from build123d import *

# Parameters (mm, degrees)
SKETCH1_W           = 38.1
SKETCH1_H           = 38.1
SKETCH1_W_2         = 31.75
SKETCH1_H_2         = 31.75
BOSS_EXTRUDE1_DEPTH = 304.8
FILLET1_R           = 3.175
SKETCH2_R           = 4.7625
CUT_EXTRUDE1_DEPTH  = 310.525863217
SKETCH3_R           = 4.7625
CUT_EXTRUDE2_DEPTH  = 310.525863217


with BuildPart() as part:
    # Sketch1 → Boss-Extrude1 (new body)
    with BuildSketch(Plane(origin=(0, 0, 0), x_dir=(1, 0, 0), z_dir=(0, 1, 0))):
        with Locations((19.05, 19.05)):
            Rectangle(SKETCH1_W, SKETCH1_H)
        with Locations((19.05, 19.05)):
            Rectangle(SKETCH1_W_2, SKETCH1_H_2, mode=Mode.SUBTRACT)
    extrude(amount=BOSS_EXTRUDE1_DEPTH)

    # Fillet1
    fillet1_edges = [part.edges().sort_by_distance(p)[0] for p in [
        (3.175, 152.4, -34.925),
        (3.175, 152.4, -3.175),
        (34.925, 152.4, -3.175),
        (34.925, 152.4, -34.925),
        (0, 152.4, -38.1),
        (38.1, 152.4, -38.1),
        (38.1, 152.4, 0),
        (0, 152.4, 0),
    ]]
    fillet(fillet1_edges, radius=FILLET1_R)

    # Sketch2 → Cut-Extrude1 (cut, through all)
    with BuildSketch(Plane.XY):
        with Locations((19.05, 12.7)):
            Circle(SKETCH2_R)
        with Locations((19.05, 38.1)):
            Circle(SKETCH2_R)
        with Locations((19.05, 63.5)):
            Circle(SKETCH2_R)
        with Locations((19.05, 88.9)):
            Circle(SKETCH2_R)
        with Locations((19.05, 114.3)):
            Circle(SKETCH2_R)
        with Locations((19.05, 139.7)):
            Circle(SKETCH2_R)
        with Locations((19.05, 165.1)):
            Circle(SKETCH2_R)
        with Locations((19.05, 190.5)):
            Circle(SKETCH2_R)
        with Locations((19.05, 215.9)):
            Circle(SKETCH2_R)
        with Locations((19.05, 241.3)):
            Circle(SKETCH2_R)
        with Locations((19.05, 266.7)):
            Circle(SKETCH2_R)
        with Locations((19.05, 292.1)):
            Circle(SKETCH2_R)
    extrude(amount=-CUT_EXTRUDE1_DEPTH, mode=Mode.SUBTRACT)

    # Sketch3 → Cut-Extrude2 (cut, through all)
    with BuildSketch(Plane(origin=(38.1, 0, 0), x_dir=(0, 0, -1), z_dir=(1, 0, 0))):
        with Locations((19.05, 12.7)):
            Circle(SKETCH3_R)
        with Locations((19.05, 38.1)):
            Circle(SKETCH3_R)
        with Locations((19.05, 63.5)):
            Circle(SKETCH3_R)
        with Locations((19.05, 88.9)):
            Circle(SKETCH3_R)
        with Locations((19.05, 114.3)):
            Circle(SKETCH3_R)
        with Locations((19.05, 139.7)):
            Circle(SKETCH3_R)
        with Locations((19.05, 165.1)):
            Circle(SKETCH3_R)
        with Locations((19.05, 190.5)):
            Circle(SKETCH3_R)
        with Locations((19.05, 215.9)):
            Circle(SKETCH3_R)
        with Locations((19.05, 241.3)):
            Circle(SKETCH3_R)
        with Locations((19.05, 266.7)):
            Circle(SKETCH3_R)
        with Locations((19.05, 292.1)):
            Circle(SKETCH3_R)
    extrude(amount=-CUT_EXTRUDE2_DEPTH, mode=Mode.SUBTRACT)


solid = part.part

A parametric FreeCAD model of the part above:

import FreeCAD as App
import Part
import Sketcher

V = App.Vector
Q = App.Units.Quantity


def edges_at(feature, points):
    """Names of the edges that pass closest to the given points."""
    edges = feature.Shape.Edges
    near = lambda p: min(range(len(edges)), key=lambda i: edges[i].distToShape(Part.Vertex(*p))[0])
    return sorted({f"Edge{near(p) + 1}" for p in points})


def add_polygon(sketch, points):
    """Adds a closed chain of lines whose ends are joined by coincident constraints."""
    first, n = sketch.GeometryCount, len(points)
    for a, b in zip(points, points[1:] + points[:1]):
        sketch.addGeometry(Part.LineSegment(App.Vector(*a, 0), App.Vector(*b, 0)), False)
    for i in range(n):
        sketch.addConstraint(Sketcher.Constraint("Coincident", first + i, 2, first + (i + 1) % n, 1))

doc = App.newDocument("Part")
params = doc.addObject("Spreadsheet::Sheet", "Params")
for row, (alias, value) in enumerate([
    ("sketch1_width", "1.5 in"),
    ("sketch1_width2", "1.25 in"),
    ("pad1_length", "12 in"),
    ("fillet_radius", "0.125 in"),
    ("sketch2_diameter", "0.375 in"),
    ("sketch3_diameter", "0.375 in"),
], start=1):
    params.set(f"A{row}", alias)
    params.set(f"B{row}", "=" + value)
    params.setAlias(f"B{row}", alias)

body = doc.addObject("PartDesign::Body", "Body")

# Sketch on XZ plane
sketch1 = body.newObject("Sketcher::SketchObject", "Sketch")
sketch1.AttachmentSupport = (doc.getObject("XZ_Plane"), [""])
sketch1.MapMode = "FlatFace"
add_polygon(sketch1, [(0, -38), (0, 0), (38, 0), (38, -38)])  # lines 0-3
add_polygon(sketch1, [(35, -3), (3, -3), (3, -35), (35, -35)])  # lines 4-7
sketch1.addConstraint([
    Sketcher.Constraint("Vertical", 0),
    Sketcher.Constraint("Horizontal", 1),
    Sketcher.Constraint("Vertical", 2),
    Sketcher.Constraint("Horizontal", 3),
    Sketcher.Constraint("Horizontal", 4),
    Sketcher.Constraint("Vertical", 5),
    Sketcher.Constraint("Horizontal", 6),
    Sketcher.Constraint("Vertical", 7),
    Sketcher.Constraint("Coincident", 0, 2, -1, 1),
    Sketcher.Constraint("Equal", 3, 0),
    Sketcher.Constraint("Equal", 6, 5),
    Sketcher.Constraint("DistanceX", 1, 1, 1, 2, Q("1.5 in")),
    Sketcher.Constraint("DistanceX", 4, 2, 4, 1, Q("1.25 in")),
    Sketcher.Constraint("DistanceX", -1, 1, 4, 2, Q("0.125 in")),
    Sketcher.Constraint("DistanceY", 4, 2, -1, 1, Q("0.125 in")),
])
sketch1.setExpression("Constraints[19]", "Params.sketch1_width")
sketch1.setExpression("Constraints[20]", "Params.sketch1_width2")
pad1 = body.newObject("PartDesign::Pad", "Pad")
pad1.Profile = sketch1
pad1.setExpression("Length", "Params.pad1_length")
pad1.Reversed = True
doc.recompute()

fillet = body.newObject("PartDesign::Fillet", "Fillet")
fillet.Base = (pad1, edges_at(pad1, [
    (3.175, 152.4, -34.925),
    (3.175, 152.4, -3.175),
    (34.925, 152.4, -3.175),
    (34.925, 152.4, -34.925),
    (0, 152.4, -38.1),
    (38.1, 152.4, -38.1),
    (38.1, 152.4, 0),
    (0, 152.4, 0),
]))
fillet.setExpression("Radius", "Params.fillet_radius")

# Sketch on XY plane
sketch2 = body.newObject("Sketcher::SketchObject", "Sketch001")
sketch2.AttachmentSupport = (doc.getObject("XY_Plane"), [""])
sketch2.MapMode = "FlatFace"
sketch2.addGeometry([
    Part.Circle(V(19.1, 12.7, 0), V(0, 0, 1), 4.8),  # 0
    Part.Circle(V(19.1, 38.1, 0), V(0, 0, 1), 4.8),  # 1
    Part.Circle(V(19.1, 63.5, 0), V(0, 0, 1), 4.8),  # 2
    Part.Circle(V(19.1, 88.9, 0), V(0, 0, 1), 4.8),  # 3
    Part.Circle(V(19.1, 114.3, 0), V(0, 0, 1), 4.8),  # 4
    Part.Circle(V(19.1, 139.7, 0), V(0, 0, 1), 4.8),  # 5
    Part.Circle(V(19.1, 165.1, 0), V(0, 0, 1), 4.8),  # 6
    Part.Circle(V(19.1, 190.5, 0), V(0, 0, 1), 4.8),  # 7
    Part.Circle(V(19.1, 215.9, 0), V(0, 0, 1), 4.8),  # 8
    Part.Circle(V(19.1, 241.3, 0), V(0, 0, 1), 4.8),  # 9
    Part.Circle(V(19.1, 266.7, 0), V(0, 0, 1), 4.8),  # 10
    Part.Circle(V(19.1, 292.1, 0), V(0, 0, 1), 4.8),  # 11
], False)
sketch2.addConstraint([
    Sketcher.Constraint("Equal", 0, 1),
    Sketcher.Constraint("Equal", 1, 2),
    Sketcher.Constraint("Equal", 2, 3),
    Sketcher.Constraint("Equal", 3, 4),
    Sketcher.Constraint("Equal", 4, 5),
    Sketcher.Constraint("Equal", 5, 6),
    Sketcher.Constraint("Equal", 6, 7),
    Sketcher.Constraint("Equal", 7, 8),
    Sketcher.Constraint("Equal", 8, 9),
    Sketcher.Constraint("Equal", 9, 10),
    Sketcher.Constraint("Equal", 10, 11),
    Sketcher.Constraint("Vertical", 0, 3, 1, 3),
    Sketcher.Constraint("Vertical", 1, 3, 2, 3),
    Sketcher.Constraint("Vertical", 2, 3, 3, 3),
    Sketcher.Constraint("Vertical", 3, 3, 4, 3),
    Sketcher.Constraint("Vertical", 4, 3, 5, 3),
    Sketcher.Constraint("Vertical", 5, 3, 6, 3),
    Sketcher.Constraint("Vertical", 6, 3, 7, 3),
    Sketcher.Constraint("Vertical", 7, 3, 8, 3),
    Sketcher.Constraint("Vertical", 8, 3, 9, 3),
    Sketcher.Constraint("Vertical", 9, 3, 10, 3),
    Sketcher.Constraint("Vertical", 10, 3, 11, 3),
    Sketcher.Constraint("Diameter", 0, Q("0.375 in")),
    Sketcher.Constraint("DistanceY", 0, 3, 1, 3, Q("1 in")),
    Sketcher.Constraint("DistanceY", 1, 3, 2, 3, Q("1 in")),
    Sketcher.Constraint("DistanceY", 2, 3, 3, 3, Q("1 in")),
    Sketcher.Constraint("DistanceY", 3, 3, 4, 3, Q("1 in")),
    Sketcher.Constraint("DistanceY", 4, 3, 5, 3, Q("1 in")),
    Sketcher.Constraint("DistanceY", 5, 3, 6, 3, Q("1 in")),
    Sketcher.Constraint("DistanceY", 6, 3, 7, 3, Q("1 in")),
    Sketcher.Constraint("DistanceY", 7, 3, 8, 3, Q("1 in")),
    Sketcher.Constraint("DistanceY", 8, 3, 9, 3, Q("1 in")),
    Sketcher.Constraint("DistanceY", 9, 3, 10, 3, Q("1 in")),
    Sketcher.Constraint("DistanceY", 10, 3, 11, 3, Q("1 in")),
    Sketcher.Constraint("DistanceY", -1, 1, 0, 3, Q("0.5 in")),
    Sketcher.Constraint("DistanceX", -1, 1, 0, 3, Q("0.75 in")),
])
sketch2.setExpression("Constraints[22]", "Params.sketch2_diameter")
pocket1 = body.newObject("PartDesign::Pocket", "Pocket")
pocket1.Profile = sketch2
pocket1.Type = "ThroughAll"

# Sketch on YZ plane
sketch3 = body.newObject("Sketcher::SketchObject", "Sketch002")
sketch3.AttachmentSupport = (doc.getObject("YZ_Plane"), [""])
sketch3.MapMode = "FlatFace"
sketch3.AttachmentOffset = App.Placement(V(0, 0, 1.5 * 25.4), App.Rotation())
sketch3.addGeometry([
    Part.Circle(V(12.7, -19.1, 0), V(0, 0, 1), 4.8),  # 0
    Part.Circle(V(38.1, -19.1, 0), V(0, 0, 1), 4.8),  # 1
    Part.Circle(V(63.5, -19.1, 0), V(0, 0, 1), 4.8),  # 2
    Part.Circle(V(88.9, -19.1, 0), V(0, 0, 1), 4.8),  # 3
    Part.Circle(V(114.3, -19.1, 0), V(0, 0, 1), 4.8),  # 4
    Part.Circle(V(139.7, -19.1, 0), V(0, 0, 1), 4.8),  # 5
    Part.Circle(V(165.1, -19.1, 0), V(0, 0, 1), 4.8),  # 6
    Part.Circle(V(190.5, -19.1, 0), V(0, 0, 1), 4.8),  # 7
    Part.Circle(V(215.9, -19.1, 0), V(0, 0, 1), 4.8),  # 8
    Part.Circle(V(241.3, -19.1, 0), V(0, 0, 1), 4.8),  # 9
    Part.Circle(V(266.7, -19.1, 0), V(0, 0, 1), 4.8),  # 10
    Part.Circle(V(292.1, -19.1, 0), V(0, 0, 1), 4.8),  # 11
], False)
sketch3.addConstraint([
    Sketcher.Constraint("Equal", 0, 1),
    Sketcher.Constraint("Equal", 1, 2),
    Sketcher.Constraint("Equal", 2, 3),
    Sketcher.Constraint("Equal", 3, 4),
    Sketcher.Constraint("Equal", 4, 5),
    Sketcher.Constraint("Equal", 5, 6),
    Sketcher.Constraint("Equal", 6, 7),
    Sketcher.Constraint("Equal", 7, 8),
    Sketcher.Constraint("Equal", 8, 9),
    Sketcher.Constraint("Equal", 9, 10),
    Sketcher.Constraint("Equal", 10, 11),
    Sketcher.Constraint("Horizontal", 0, 3, 1, 3),
    Sketcher.Constraint("Horizontal", 1, 3, 2, 3),
    Sketcher.Constraint("Horizontal", 2, 3, 3, 3),
    Sketcher.Constraint("Horizontal", 3, 3, 4, 3),
    Sketcher.Constraint("Horizontal", 4, 3, 5, 3),
    Sketcher.Constraint("Horizontal", 5, 3, 6, 3),
    Sketcher.Constraint("Horizontal", 6, 3, 7, 3),
    Sketcher.Constraint("Horizontal", 7, 3, 8, 3),
    Sketcher.Constraint("Horizontal", 8, 3, 9, 3),
    Sketcher.Constraint("Horizontal", 9, 3, 10, 3),
    Sketcher.Constraint("Horizontal", 10, 3, 11, 3),
    Sketcher.Constraint("Diameter", 0, Q("0.375 in")),
    Sketcher.Constraint("DistanceX", 0, 3, 1, 3, Q("1 in")),
    Sketcher.Constraint("DistanceX", 1, 3, 2, 3, Q("1 in")),
    Sketcher.Constraint("DistanceX", 2, 3, 3, 3, Q("1 in")),
    Sketcher.Constraint("DistanceX", 3, 3, 4, 3, Q("1 in")),
    Sketcher.Constraint("DistanceX", 4, 3, 5, 3, Q("1 in")),
    Sketcher.Constraint("DistanceX", 5, 3, 6, 3, Q("1 in")),
    Sketcher.Constraint("DistanceX", 6, 3, 7, 3, Q("1 in")),
    Sketcher.Constraint("DistanceX", 7, 3, 8, 3, Q("1 in")),
    Sketcher.Constraint("DistanceX", 8, 3, 9, 3, Q("1 in")),
    Sketcher.Constraint("DistanceX", 9, 3, 10, 3, Q("1 in")),
    Sketcher.Constraint("DistanceX", 10, 3, 11, 3, Q("1 in")),
    Sketcher.Constraint("DistanceX", -1, 1, 0, 3, Q("0.5 in")),
    Sketcher.Constraint("DistanceY", 0, 3, -1, 1, Q("0.75 in")),
])
sketch3.setExpression("Constraints[22]", "Params.sketch3_diameter")
pocket2 = body.newObject("PartDesign::Pocket", "Pocket001")
pocket2.Profile = sketch3
pocket2.Type = "ThroughAll"

doc.recompute()
